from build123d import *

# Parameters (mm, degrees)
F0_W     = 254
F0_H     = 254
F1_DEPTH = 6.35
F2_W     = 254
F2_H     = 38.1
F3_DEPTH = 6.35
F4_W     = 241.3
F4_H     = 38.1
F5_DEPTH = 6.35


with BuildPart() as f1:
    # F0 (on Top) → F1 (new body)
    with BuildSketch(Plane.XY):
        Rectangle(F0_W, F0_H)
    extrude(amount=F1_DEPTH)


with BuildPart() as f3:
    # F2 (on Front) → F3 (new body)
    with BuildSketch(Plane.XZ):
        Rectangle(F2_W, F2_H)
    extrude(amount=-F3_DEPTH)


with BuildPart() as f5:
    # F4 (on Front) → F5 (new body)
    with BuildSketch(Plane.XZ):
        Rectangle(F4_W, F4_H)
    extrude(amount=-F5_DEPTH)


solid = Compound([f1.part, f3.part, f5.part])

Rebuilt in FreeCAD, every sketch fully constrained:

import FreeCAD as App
import Part
import Sketcher

V = App.Vector
Q = App.Units.Quantity


def add_polygon(sketch, points):
    """Adds a closed chain of lines whose ends are joined by coincident constraints."""
    first, n = sketch.GeometryCount, len(points)
    for a, b in zip(points, points[1:] + points[:1]):
        sketch.addGeometry(Part.LineSegment(App.Vector(*a, 0), App.Vector(*b, 0)), False)
    for i in range(n):
        sketch.addConstraint(Sketcher.Constraint("Coincident", first + i, 2, first + (i + 1) % n, 1))

doc = App.newDocument("Part")
params = doc.addObject("Spreadsheet::Sheet", "Params")
for row, (alias, value) in enumerate([
    ("sketch1_width", "10 in"),
    ("pad1_length", "0.25 in"),
    ("sketch2_width", "10 in"),
    ("sketch2_height", "1.5 in"),
    ("pad2_length", "0.25 in"),
    ("sketch3_width", "9.5 in"),
    ("sketch3_height", "1.5 in"),
    ("pad3_length", "0.25 in"),
], start=1):
    params.set(f"A{row}", alias)
    params.set(f"B{row}", "=" + value)
    params.setAlias(f"B{row}", alias)

body = doc.addObject("PartDesign::Body", "Body")

# Sketch on XY plane
sketch1 = body.newObject("Sketcher::SketchObject", "Sketch")
sketch1.AttachmentSupport = (doc.getObject("XY_Plane"), [""])
sketch1.MapMode = "FlatFace"
add_polygon(sketch1, [(-127, 127), (-127, -127), (127, -127), (127, 127)])  # lines 0-3
sketch1.addConstraint([
    Sketcher.Constraint("Vertical", 0),
    Sketcher.Constraint("Horizontal", 1),
    Sketcher.Constraint("Vertical", 2),
    Sketcher.Constraint("Horizontal", 3),
    Sketcher.Constraint("Symmetric", 0, 2, 2, 2, -1, 1),
    Sketcher.Constraint("Equal", 3, 0),
    Sketcher.Constraint("DistanceX", 1, 1, 1, 2, Q("10 in")),
])
sketch1.setExpression("Constraints[10]", "Params.sketch1_width")
pad1 = body.newObject("PartDesign::Pad", "Pad")
pad1.Profile = sketch1
pad1.setExpression("Length", "Params.pad1_length")
body2 = doc.addObject("PartDesign::Body", "Body001")

# Sketch on XZ plane
sketch2 = body2.newObject("Sketcher::SketchObject", "Sketch001")
sketch2.AttachmentSupport = (doc.getObject("XZ_Plane001"), [""])
sketch2.MapMode = "FlatFace"
add_polygon(sketch2, [(-127, 19.05), (-127, -19.05), (127, -19.05), (127, 19.05)])  # lines 0-3
sketch2.addConstraint([
    Sketcher.Constraint("Vertical", 0),
    Sketcher.Constraint("Horizontal", 1),
    Sketcher.Constraint("Vertical", 2),
    Sketcher.Constraint("Horizontal", 3),
    Sketcher.Constraint("Symmetric", 0, 2, 2, 2, -1, 1),
    Sketcher.Constraint("DistanceX", 1, 1, 1, 2, Q("10 in")),
    Sketcher.Constraint("DistanceY", 0, 2, 0, 1, Q("1.5 in")),
])
sketch2.setExpression("Constraints[9]", "Params.sketch2_width")
sketch2.setExpression("Constraints[10]", "Params.sketch2_height")
pad2 = body2.newObject("PartDesign::Pad", "Pad001")
pad2.Profile = sketch2
pad2.setExpression("Length", "Params.pad2_length")
pad2.Reversed = True
body3 = doc.addObject("PartDesign::Body", "Body002")

# Sketch on XZ plane
sketch3 = body3.newObject("Sketcher::SketchObject", "Sketch002")
sketch3.AttachmentSupport = (doc.getObject("XZ_Plane002"), [""])
sketch3.MapMode = "FlatFace"
add_polygon(sketch3, [(-120.65, 19.05), (-120.65, -19.05), (120.65, -19.05), (120.65, 19.05)])  # lines 0-3
sketch3.addConstraint([
    Sketcher.Constraint("Vertical", 0),
    Sketcher.Constraint("Horizontal", 1),
    Sketcher.Constraint("Vertical", 2),
    Sketcher.Constraint("Horizontal", 3),
    Sketcher.Constraint("Symmetric", 0, 2, 2, 2, -1, 1),
    Sketcher.Constraint("DistanceX", 1, 1, 1, 2, Q("9.5 in")),
    Sketcher.Constraint("DistanceY", 0, 2, 0, 1, Q("1.5 in")),
])
sketch3.setExpression("Constraints[9]", "Params.sketch3_width")
sketch3.setExpression("Constraints[10]", "Params.sketch3_height")
pad3 = body3.newObject("PartDesign::Pad", "Pad002")
pad3.Profile = sketch3
pad3.setExpression("Length", "Params.pad3_length")
pad3.Reversed = True

doc.recompute()
